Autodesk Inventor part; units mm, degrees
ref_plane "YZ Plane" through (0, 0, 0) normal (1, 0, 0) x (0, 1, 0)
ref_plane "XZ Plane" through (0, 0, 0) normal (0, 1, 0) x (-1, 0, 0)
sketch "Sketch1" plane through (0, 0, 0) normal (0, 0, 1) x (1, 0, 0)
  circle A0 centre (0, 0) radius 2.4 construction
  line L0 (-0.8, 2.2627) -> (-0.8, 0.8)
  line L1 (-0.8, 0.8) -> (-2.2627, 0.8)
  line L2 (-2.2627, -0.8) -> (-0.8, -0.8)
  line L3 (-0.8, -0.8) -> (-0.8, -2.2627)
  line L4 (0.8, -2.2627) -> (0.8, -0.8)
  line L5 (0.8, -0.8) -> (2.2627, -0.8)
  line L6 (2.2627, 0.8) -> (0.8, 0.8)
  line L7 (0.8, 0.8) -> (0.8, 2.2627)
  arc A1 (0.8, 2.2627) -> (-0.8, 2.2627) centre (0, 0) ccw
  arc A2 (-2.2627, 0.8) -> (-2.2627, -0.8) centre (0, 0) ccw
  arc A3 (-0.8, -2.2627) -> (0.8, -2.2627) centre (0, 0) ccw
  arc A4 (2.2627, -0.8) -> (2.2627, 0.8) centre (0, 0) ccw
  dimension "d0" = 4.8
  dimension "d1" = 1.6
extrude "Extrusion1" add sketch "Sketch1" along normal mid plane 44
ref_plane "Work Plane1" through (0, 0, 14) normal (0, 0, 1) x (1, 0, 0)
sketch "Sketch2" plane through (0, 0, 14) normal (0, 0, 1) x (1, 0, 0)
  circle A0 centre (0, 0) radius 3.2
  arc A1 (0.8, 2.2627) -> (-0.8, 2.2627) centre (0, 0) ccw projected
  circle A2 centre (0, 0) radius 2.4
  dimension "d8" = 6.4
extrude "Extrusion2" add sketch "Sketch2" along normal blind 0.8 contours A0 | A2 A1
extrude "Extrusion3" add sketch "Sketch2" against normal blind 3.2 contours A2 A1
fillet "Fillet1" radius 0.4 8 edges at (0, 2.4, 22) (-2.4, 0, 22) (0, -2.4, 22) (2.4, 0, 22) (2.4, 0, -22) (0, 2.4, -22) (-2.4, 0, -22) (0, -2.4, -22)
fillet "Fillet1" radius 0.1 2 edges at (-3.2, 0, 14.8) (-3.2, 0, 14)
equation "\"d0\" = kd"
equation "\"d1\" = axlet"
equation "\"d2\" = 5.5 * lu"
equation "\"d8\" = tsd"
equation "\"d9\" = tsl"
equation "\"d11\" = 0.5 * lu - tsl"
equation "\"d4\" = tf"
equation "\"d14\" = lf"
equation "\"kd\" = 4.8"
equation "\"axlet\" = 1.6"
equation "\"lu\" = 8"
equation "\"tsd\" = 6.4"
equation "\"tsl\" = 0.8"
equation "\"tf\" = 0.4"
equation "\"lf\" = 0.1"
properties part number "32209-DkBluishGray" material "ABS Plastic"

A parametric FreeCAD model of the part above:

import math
import FreeCAD as App
import Part
import Sketcher

V = App.Vector


def edges_at(feature, points):
    """Names of the edges that pass closest to the given points."""
    edges = feature.Shape.Edges
    near = lambda p: min(range(len(edges)), key=lambda i: edges[i].distToShape(Part.Vertex(*p))[0])
    return sorted({f"Edge{near(p) + 1}" for p in points})

doc = App.newDocument("Part")
params = doc.addObject("Spreadsheet::Sheet", "Params")
for row, (alias, value) in enumerate([
    ("sketch1_radius", "2.4 mm"),
    ("pad1_length", "44 mm"),
    ("sketch2_diameter", "6.4 mm"),
    ("pad2_length", "0.8 mm"),
    ("sketch3_diameter", "4.8 mm"),
    ("pad3_length", "3.2 mm"),
    ("fillet_radius", "0.4 mm"),
    ("fillet2_radius", "0.1 mm"),
], start=1):
    params.set(f"A{row}", alias)
    params.set(f"B{row}", "=" + value)
    params.setAlias(f"B{row}", alias)

body = doc.addObject("PartDesign::Body", "Body")

# Sketch on XY plane
sketch1 = body.newObject("Sketcher::SketchObject", "Sketch")
sketch1.AttachmentSupport = (doc.getObject("XY_Plane"), [""])
sketch1.MapMode = "FlatFace"
sketch1.addGeometry([
    Part.ArcOfCircle(Part.Circle(V(0, 0, 0), V(0, 0, 1), 2.399961), math.radians(70.528448), math.radians(109.471552)),  # 0
    Part.LineSegment(V(-0.8, 2.2627, 0), V(-0.8, 0.8, 0)),  # 1
    Part.LineSegment(V(-0.8, 0.8, 0), V(-2.2627, 0.8, 0)),  # 2
    Part.ArcOfCircle(Part.Circle(V(0, 0, 0), V(0, 0, 1), 2.399961), math.radians(160.528448), math.radians(199.471552)),  # 3
    Part.LineSegment(V(-2.2627, -0.8, 0), V(-0.8, -0.8, 0)),  # 4
    Part.LineSegment(V(-0.8, -0.8, 0), V(-0.8, -2.2627, 0)),  # 5
    Part.ArcOfCircle(Part.Circle(V(0, 0, 0), V(0, 0, 1), 2.399961), math.radians(-109.471552), math.radians(-70.528448)),  # 6
    Part.LineSegment(V(0.8, -2.2627, 0), V(0.8, -0.8, 0)),  # 7
    Part.LineSegment(V(0.8, -0.8, 0), V(2.2627, -0.8, 0)),  # 8
    Part.ArcOfCircle(Part.Circle(V(0, 0, 0), V(0, 0, 1), 2.399961), math.radians(-19.471552), math.radians(19.471552)),  # 9
    Part.LineSegment(V(2.2627, 0.8, 0), V(0.8, 0.8, 0)),  # 10
    Part.LineSegment(V(0.8, 0.8, 0), V(0.8, 2.2627, 0)),  # 11
], False)
sketch1.addConstraint([
    Sketcher.Constraint("Coincident", 0, 2, 1, 1),
    Sketcher.Constraint("Coincident", 1, 2, 2, 1),
    Sketcher.Constraint("Coincident", 2, 2, 3, 1),
    Sketcher.Constraint("Coincident", 3, 2, 4, 1),
    Sketcher.Constraint("Coincident", 4, 2, 5, 1),
    Sketcher.Constraint("Coincident", 5, 2, 6, 1),
    Sketcher.Constraint("Coincident", 6, 2, 7, 1),
    Sketcher.Constraint("Coincident", 7, 2, 8, 1),
    Sketcher.Constraint("Coincident", 8, 2, 9, 1),
    Sketcher.Constraint("Coincident", 9, 2, 10, 1),
    Sketcher.Constraint("Coincident", 10, 2, 11, 1),
    Sketcher.Constraint("Coincident", 11, 2, 0, 1),
    Sketcher.Constraint("Vertical", 1),
    Sketcher.Constraint("Horizontal", 2),
    Sketcher.Constraint("Horizontal", 4),
    Sketcher.Constraint("Vertical", 5),
    Sketcher.Constraint("Vertical", 7),
    Sketcher.Constraint("Horizontal", 8),
    Sketcher.Constraint("Horizontal", 10),
    Sketcher.Constraint("Vertical", 11),
    Sketcher.Constraint("Coincident", 0, 3, -1, 1),
    Sketcher.Constraint("Coincident", 3, 3, -1, 1),
    Sketcher.Constraint("Coincident", 6, 3, -1, 1),
    Sketcher.Constraint("Coincident", 9, 3, -1, 1),
    Sketcher.Constraint("Equal", 0, 3),
    Sketcher.Constraint("Equal", 3, 6),
    Sketcher.Constraint("Equal", 6, 9),
    Sketcher.Constraint("Symmetric", 1, 2, 7, 2, -1, 1),
    Sketcher.Constraint("Symmetric", 4, 2, 10, 2, -1, 1),
    Sketcher.Constraint("Symmetric", 4, 2, 7, 2, -2),
    Sketcher.Constraint("Equal", 10, 1),
    Sketcher.Constraint("Radius", 0, 2.4),
    Sketcher.Constraint("DistanceY", 3, 2, 2, 2, 1.6),
])
sketch1.setExpression("Constraints[31]", "Params.sketch1_radius")
pad1 = body.newObject("PartDesign::Pad", "Pad")
pad1.Profile = sketch1
pad1.setExpression("Length", "Params.pad1_length")
pad1.Midplane = True

# Sketch on XY plane
sketch2 = body.newObject("Sketcher::SketchObject", "Sketch001")
sketch2.AttachmentSupport = (doc.getObject("XY_Plane"), [""])
sketch2.MapMode = "FlatFace"
sketch2.AttachmentOffset = App.Placement(V(0, 0, 14), App.Rotation())
sketch2.addGeometry(Part.Circle(V(0, 0, 0), V(0, 0, 1), 3.2), False)
sketch2.addConstraint([
    Sketcher.Constraint("Coincident", 0, 3, -1, 1),
    Sketcher.Constraint("Diameter", 0, 6.4),
])
sketch2.setExpression("Constraints[1]", "Params.sketch2_diameter")
pad2 = body.newObject("PartDesign::Pad", "Pad001")
pad2.Profile = sketch2
pad2.setExpression("Length", "Params.pad2_length")

# Sketch on XY plane
sketch3 = body.newObject("Sketcher::SketchObject", "Sketch002")
sketch3.AttachmentSupport = (doc.getObject("XY_Plane"), [""])
sketch3.MapMode = "FlatFace"
sketch3.AttachmentOffset = App.Placement(V(0, 0, 14), App.Rotation())
sketch3.addGeometry(Part.Circle(V(0, 0, 0), V(0, 0, 1), 2.399961), False)
sketch3.addConstraint([
    Sketcher.Constraint("Coincident", 0, 3, -1, 1),
    Sketcher.Constraint("Diameter", 0, 4.8),
])
sketch3.setExpression("Constraints[1]", "Params.sketch3_diameter")
pad3 = body.newObject("PartDesign::Pad", "Pad002")
pad3.Profile = sketch3
pad3.setExpression("Length", "Params.pad3_length")
pad3.Reversed = True
doc.recompute()

fillet = body.newObject("PartDesign::Fillet", "Fillet")
fillet.Base = (pad3, edges_at(pad3, [
    (0, 2.4, 22),
    (-2.4, 0, 22),
    (0, -2.4, 22),
    (2.4, 0, 22),
    (2.4, 0, -22),
    (0, 2.4, -22),
    (-2.4, 0, -22),
    (0, -2.4, -22),
]))
fillet.setExpression("Radius", "Params.fillet_radius")
doc.recompute()

fillet2 = body.newObject("PartDesign::Fillet", "Fillet001")
fillet2.Base = (fillet, edges_at(fillet, [(-3.2, 0, 14.8), (-3.2, 0, 14)]))
fillet2.setExpression("Radius", "Params.fillet2_radius")

doc.recompute()
